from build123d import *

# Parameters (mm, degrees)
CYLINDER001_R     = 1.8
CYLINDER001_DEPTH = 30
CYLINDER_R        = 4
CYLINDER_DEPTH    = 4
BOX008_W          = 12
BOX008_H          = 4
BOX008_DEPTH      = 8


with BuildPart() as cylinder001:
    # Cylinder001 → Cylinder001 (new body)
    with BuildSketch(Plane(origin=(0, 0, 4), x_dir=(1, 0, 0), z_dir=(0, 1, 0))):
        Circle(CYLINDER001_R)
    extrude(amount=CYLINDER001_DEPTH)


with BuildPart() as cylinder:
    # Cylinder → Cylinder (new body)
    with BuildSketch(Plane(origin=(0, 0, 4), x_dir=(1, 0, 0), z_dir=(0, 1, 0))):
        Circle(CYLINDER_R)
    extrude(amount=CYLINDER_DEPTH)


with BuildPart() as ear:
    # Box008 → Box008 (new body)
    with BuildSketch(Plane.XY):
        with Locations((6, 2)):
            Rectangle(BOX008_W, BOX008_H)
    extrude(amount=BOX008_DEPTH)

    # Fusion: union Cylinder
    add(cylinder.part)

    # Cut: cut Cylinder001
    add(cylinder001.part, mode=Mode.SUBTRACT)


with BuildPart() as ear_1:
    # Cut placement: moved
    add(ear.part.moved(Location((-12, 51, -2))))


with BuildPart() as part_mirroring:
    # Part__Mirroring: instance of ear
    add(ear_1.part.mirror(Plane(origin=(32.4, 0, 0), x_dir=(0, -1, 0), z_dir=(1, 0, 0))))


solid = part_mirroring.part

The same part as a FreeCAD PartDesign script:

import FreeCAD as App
import Part
import Sketcher
from FreeCAD import Vector


def add_polygon(sketch, points):
    """Adds a closed chain of lines whose ends are joined by coincident constraints."""
    first, n = sketch.GeometryCount, len(points)
    for a, b in zip(points, points[1:] + points[:1]):
        sketch.addGeometry(Part.LineSegment(App.Vector(*a, 0), App.Vector(*b, 0)), False)
    for i in range(n):
        sketch.addConstraint(Sketcher.Constraint("Coincident", first + i, 2, first + (i + 1) % n, 1))

doc = App.newDocument("Part")
body = doc.addObject("PartDesign::Body", "Body")

sketch1 = doc.addObject("Sketcher::SketchObject", "Sketch")
body.addObject(sketch1)
sketch1.AttachmentSupport = (doc.XZ_Plane, [""])
sketch1.MapMode = "FlatFace"
sketch1.addGeometry(Part.Circle(Vector(0, 4, 0), Vector(0, 0, 1), 1.8), False)
sketch1.addConstraint([
    Sketcher.Constraint("PointOnObject", 0, 3, -2),
    Sketcher.Constraint("Diameter", 0, 3.6),
    Sketcher.Constraint("DistanceY", -1, 1, 0, 3, 4.0),
])
pad1 = doc.addObject("PartDesign::Pad", "Pad")
body.addObject(pad1)
pad1.Profile = sketch1
pad1.Length = 30
pad1.Reversed = True
body2 = doc.addObject("PartDesign::Body", "Body001")

sketch2 = doc.addObject("Sketcher::SketchObject", "Sketch001")
body2.addObject(sketch2)
sketch2.AttachmentSupport = (doc.getObject("XZ_Plane001"), [""])
sketch2.MapMode = "FlatFace"
sketch2.addGeometry(Part.Circle(Vector(0, 4, 0), Vector(0, 0, 1), 4), False)
sketch2.addConstraint([
    Sketcher.Constraint("PointOnObject", 0, 3, -2),
    Sketcher.Constraint("Diameter", 0, 8.0),
    Sketcher.Constraint("DistanceY", -1, 1, 0, 3, 4.0),
])
pad2 = doc.addObject("PartDesign::Pad", "Pad001")
body2.addObject(pad2)
pad2.Profile = sketch2
pad2.Length = 4
pad2.Reversed = True
body3 = doc.addObject("PartDesign::Body", "Body002")

sketch3 = doc.addObject("Sketcher::SketchObject", "Sketch002")
body3.addObject(sketch3)
sketch3.AttachmentSupport = (doc.getObject("XY_Plane002"), [""])
sketch3.MapMode = "FlatFace"
add_polygon(sketch3, [(0, 4), (0, 0), (12, 0), (12, 4)])
sketch3.addConstraint([
    Sketcher.Constraint("Vertical", 0),
    Sketcher.Constraint("Horizontal", 1),
    Sketcher.Constraint("Vertical", 2),
    Sketcher.Constraint("Horizontal", 3),
    Sketcher.Constraint("Coincident", 0, 2, -1, 1),
    Sketcher.Constraint("DistanceX", 1, 1, 1, 2, 12.0),
    Sketcher.Constraint("DistanceY", 0, 2, 0, 1, 4.0),
])
pad3 = doc.addObject("PartDesign::Pad", "Pad002")
body3.addObject(pad3)
pad3.Profile = sketch3
pad3.Length = 8
doc.recompute()

boolean = doc.addObject("PartDesign::Boolean", "Boolean")
body3.addObject(boolean)
boolean.Type = "Fuse"
boolean.addObjects([body2])
doc.recompute()

boolean2 = doc.addObject("PartDesign::Boolean", "Boolean001")
body3.addObject(boolean2)
boolean2.Type = "Cut"
boolean2.addObjects([body])
body4 = doc.addObject("PartDesign::Body", "Body003")
doc.recompute()

body3.Placement = App.Placement(Vector(-12, 51, -2), App.Rotation(Vector(0, 0, 1), 0))
boolean3 = doc.addObject("PartDesign::Boolean", "Boolean002")
body4.addObject(boolean3)
boolean3.Type = "Fuse"
boolean3.addObjects([body3])
body5 = doc.addObject("PartDesign::Body", "Body004")
doc.recompute()

mirroring = doc.addObject("Part::Mirroring", "Mirroring")
mirroring.Source = body4
mirroring.Base = Vector(32.4, 0, 0)
mirroring.Normal = Vector(1, 0, 0)
body5.BaseFeature = mirroring
doc.recompute()
body4.Visibility = False
mirroring.Visibility = False

doc.recompute()
